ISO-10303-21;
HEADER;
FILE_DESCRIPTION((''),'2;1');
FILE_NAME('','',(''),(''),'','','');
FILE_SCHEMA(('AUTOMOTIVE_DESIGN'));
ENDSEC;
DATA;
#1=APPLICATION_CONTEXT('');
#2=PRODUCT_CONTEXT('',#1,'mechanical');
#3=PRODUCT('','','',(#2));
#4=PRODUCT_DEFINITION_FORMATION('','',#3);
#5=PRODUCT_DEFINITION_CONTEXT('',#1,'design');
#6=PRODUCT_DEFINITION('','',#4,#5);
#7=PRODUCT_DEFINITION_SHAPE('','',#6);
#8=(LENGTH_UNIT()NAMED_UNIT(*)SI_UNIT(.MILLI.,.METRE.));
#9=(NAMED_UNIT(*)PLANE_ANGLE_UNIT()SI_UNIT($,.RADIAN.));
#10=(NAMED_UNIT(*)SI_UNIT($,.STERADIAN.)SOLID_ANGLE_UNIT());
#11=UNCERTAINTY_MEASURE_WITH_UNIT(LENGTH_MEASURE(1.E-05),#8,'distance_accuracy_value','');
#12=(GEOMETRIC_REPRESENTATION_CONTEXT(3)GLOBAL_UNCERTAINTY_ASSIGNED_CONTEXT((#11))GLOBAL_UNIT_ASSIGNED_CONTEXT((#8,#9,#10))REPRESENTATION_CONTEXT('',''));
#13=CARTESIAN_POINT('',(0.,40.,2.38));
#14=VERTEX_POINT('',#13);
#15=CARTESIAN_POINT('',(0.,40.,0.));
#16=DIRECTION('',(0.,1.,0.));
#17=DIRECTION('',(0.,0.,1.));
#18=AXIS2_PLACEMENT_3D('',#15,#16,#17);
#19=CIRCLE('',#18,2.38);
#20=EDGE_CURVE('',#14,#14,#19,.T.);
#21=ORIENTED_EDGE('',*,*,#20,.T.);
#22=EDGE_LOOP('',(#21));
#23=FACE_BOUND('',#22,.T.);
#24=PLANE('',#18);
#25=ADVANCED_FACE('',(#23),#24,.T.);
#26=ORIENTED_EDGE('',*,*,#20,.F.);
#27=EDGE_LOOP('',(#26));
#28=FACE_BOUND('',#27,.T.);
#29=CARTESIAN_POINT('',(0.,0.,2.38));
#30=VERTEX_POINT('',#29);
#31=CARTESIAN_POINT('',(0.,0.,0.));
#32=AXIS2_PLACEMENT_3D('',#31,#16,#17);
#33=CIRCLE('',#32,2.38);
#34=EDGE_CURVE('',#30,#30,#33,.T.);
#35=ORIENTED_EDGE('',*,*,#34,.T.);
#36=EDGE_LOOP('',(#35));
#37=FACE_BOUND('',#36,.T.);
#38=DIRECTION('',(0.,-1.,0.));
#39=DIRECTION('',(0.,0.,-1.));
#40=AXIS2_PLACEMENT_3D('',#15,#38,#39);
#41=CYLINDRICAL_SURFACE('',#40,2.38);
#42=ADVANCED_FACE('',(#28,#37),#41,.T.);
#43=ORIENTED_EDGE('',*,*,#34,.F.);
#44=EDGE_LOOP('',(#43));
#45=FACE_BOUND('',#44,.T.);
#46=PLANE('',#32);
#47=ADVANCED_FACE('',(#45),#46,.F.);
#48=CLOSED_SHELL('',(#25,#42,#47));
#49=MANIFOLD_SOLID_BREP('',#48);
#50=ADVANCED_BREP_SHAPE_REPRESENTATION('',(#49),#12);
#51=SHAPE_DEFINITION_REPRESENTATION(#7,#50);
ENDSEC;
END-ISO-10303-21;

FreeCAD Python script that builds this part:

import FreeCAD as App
import Part
import Sketcher
Q = App.Units.Quantity

doc = App.newDocument("Part")
body = doc.addObject("PartDesign::Body", "Body")

# Sketch on XZ plane
sketch1 = body.newObject("Sketcher::SketchObject", "Sketch")
sketch1.AttachmentSupport = (doc.getObject("XZ_Plane"), [""])
sketch1.MapMode = "FlatFace"
sketch1.addGeometry(Part.Circle(App.Vector(0, 0, 0), App.Vector(0, 0, 1), 2.4), False)
sketch1.addConstraint(Sketcher.Constraint("Coincident", 0, 3, -1, 1))
sketch1.addConstraint(Sketcher.Constraint("Diameter", 0, Q("4.76 mm")))
pad1 = body.newObject("PartDesign::Pad", "Pad")
pad1.Profile = sketch1
pad1.Length = 40
pad1.Reversed = True

doc.recompute()
